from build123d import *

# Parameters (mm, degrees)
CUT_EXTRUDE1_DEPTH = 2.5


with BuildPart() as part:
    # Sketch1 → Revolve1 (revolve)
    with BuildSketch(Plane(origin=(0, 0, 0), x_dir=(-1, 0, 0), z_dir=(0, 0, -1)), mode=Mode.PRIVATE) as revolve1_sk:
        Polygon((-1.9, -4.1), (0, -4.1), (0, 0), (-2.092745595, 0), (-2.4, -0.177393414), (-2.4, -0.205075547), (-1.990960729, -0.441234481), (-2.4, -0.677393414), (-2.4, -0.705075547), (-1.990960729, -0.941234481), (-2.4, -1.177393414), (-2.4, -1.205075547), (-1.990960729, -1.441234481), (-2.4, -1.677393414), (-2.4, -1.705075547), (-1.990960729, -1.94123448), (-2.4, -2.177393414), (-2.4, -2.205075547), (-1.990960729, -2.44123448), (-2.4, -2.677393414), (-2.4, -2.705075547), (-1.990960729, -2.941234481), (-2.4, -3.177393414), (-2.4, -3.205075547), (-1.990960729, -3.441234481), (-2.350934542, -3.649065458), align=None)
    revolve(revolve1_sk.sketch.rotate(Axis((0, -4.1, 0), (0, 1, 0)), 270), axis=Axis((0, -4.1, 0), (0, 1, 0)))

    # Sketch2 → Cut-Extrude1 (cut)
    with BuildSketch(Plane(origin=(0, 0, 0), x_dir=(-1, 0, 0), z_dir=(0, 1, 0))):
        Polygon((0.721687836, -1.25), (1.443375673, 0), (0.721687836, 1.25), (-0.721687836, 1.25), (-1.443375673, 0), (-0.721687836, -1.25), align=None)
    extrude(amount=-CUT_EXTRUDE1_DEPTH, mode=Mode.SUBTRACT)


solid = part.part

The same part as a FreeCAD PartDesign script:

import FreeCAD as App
import Part
import Sketcher
Q = App.Units.Quantity


def add_polygon(sketch, points):
    """Adds a closed chain of lines whose ends are joined by coincident constraints."""
    first, n = sketch.GeometryCount, len(points)
    for a, b in zip(points, points[1:] + points[:1]):
        sketch.addGeometry(Part.LineSegment(App.Vector(*a, 0), App.Vector(*b, 0)), False)
    for i in range(n):
        sketch.addConstraint(Sketcher.Constraint("Coincident", first + i, 2, first + (i + 1) % n, 1))

doc = App.newDocument("Part")
params = doc.addObject("Spreadsheet::Sheet", "Params")
for row, (alias, value) in enumerate([
    ("sketch1_width", "1.9 mm"),
    ("sketch1_height", "4.1 mm"),
    ("revolution_angle", "360 deg"),
    ("pocket1_length", "2.5 mm"),
], start=1):
    params.set(f"A{row}", alias)
    params.set(f"B{row}", "=" + value)
    params.setAlias(f"B{row}", alias)

body = doc.addObject("PartDesign::Body", "Body")

# Sketch on XY plane
sketch1 = doc.addObject("Sketcher::SketchObject", "Sketch")
body.addObject(sketch1)
sketch1.AttachmentSupport = (doc.XY_Plane, [""])
sketch1.MapMode = "FlatFace"
add_polygon(sketch1, [(1.9, -4.1), (0, -4.1), (0, 0), (2.093, 0), (2.4, -0.177), (2.4, -0.205), (1.991, -0.441), (2.4, -0.677), (2.4, -0.705), (1.991, -0.941), (2.4, -1.177), (2.4, -1.205), (1.991, -1.441), (2.4, -1.677), (2.4, -1.705), (1.991, -1.941), (2.4, -2.177), (2.4, -2.205), (1.991, -2.441), (2.4, -2.677), (2.4, -2.705), (1.991, -2.941), (2.4, -3.177), (2.4, -3.205), (1.991, -3.441), (2.351, -3.649)])  # lines 0-25
sketch1.addConstraint([
    Sketcher.Constraint("Horizontal", 0),
    Sketcher.Constraint("Vertical", 1),
    Sketcher.Constraint("Horizontal", 2),
    Sketcher.Constraint("Vertical", 4),
    Sketcher.Constraint("Vertical", 7),
    Sketcher.Constraint("Vertical", 10),
    Sketcher.Constraint("Vertical", 13),
    Sketcher.Constraint("Vertical", 16),
    Sketcher.Constraint("Vertical", 19),
    Sketcher.Constraint("Vertical", 22),
    Sketcher.Constraint("Coincident", 1, 2, -1, 1),
    Sketcher.Constraint("Parallel", 3, 6),
    Sketcher.Constraint("Parallel", 5, 8),
    Sketcher.Constraint("Parallel", 6, 9),
    Sketcher.Constraint("Parallel", 8, 11),
    Sketcher.Constraint("Parallel", 9, 12),
    Sketcher.Constraint("Parallel", 11, 14),
    Sketcher.Constraint("Parallel", 12, 15),
    Sketcher.Constraint("Parallel", 14, 17),
    Sketcher.Constraint("Parallel", 15, 18),
    Sketcher.Constraint("Parallel", 17, 20),
    Sketcher.Constraint("Parallel", 18, 21),
    Sketcher.Constraint("Parallel", 20, 23),
    Sketcher.Constraint("Parallel", 21, 24),
    Sketcher.Constraint("Vertical", 4, 2, 6, 2),
    Sketcher.Constraint("Vertical", 5, 2, 8, 2),
    Sketcher.Constraint("Vertical", 7, 2, 9, 2),
    Sketcher.Constraint("Vertical", 8, 2, 11, 2),
    Sketcher.Constraint("Vertical", 10, 2, 12, 2),
    Sketcher.Constraint("Vertical", 11, 2, 14, 2),
    Sketcher.Constraint("Vertical", 13, 2, 15, 2),
    Sketcher.Constraint("Vertical", 14, 2, 17, 2),
    Sketcher.Constraint("Vertical", 16, 2, 18, 2),
    Sketcher.Constraint("Vertical", 17, 2, 20, 2),
    Sketcher.Constraint("Vertical", 19, 2, 21, 2),
    Sketcher.Constraint("Vertical", 20, 2, 23, 2),
    Sketcher.Constraint("Equal", 4, 7),
    Sketcher.Constraint("Equal", 7, 10),
    Sketcher.Constraint("Equal", 10, 13),
    Sketcher.Constraint("Equal", 13, 16),
    Sketcher.Constraint("Equal", 16, 19),
    Sketcher.Constraint("Equal", 19, 22),
    Sketcher.Constraint("Equal", 5, 6),
    Sketcher.Constraint("Angle", 3, Q("-30 deg")),
    Sketcher.Constraint("Angle", 25, Q("-135 deg")),
    Sketcher.Constraint("DistanceX", 0, 2, 0, 1, 1.9),
    Sketcher.Constraint("DistanceY", 1, 1, 1, 2, 4.1),
    Sketcher.Constraint("DistanceX", -1, 1, 3, 2, 2.4),
    Sketcher.Constraint("DistanceY", 6, 2, 3, 2, 0.5),
    Sketcher.Constraint("Distance", 24, 0.415662),
    Sketcher.Constraint("DistanceX", 2, 1, 2, 2, 2.092746),
])
sketch1.setExpression("Constraints[71]", "Params.sketch1_width")
sketch1.setExpression("Constraints[72]", "Params.sketch1_height")
revolution = doc.addObject("PartDesign::Revolution", "Revolution")
body.addObject(revolution)
revolution.Profile = sketch1
revolution.ReferenceAxis = (sketch1, ["V_Axis"])
revolution.setExpression("Angle", "Params.revolution_angle")

# Sketch on XZ plane
sketch2 = doc.addObject("Sketcher::SketchObject", "Sketch001")
body.addObject(sketch2)
sketch2.AttachmentSupport = (doc.XZ_Plane, [""])
sketch2.MapMode = "FlatFace"
add_polygon(sketch2, [(-0.7, -1.2), (-1.4, 0), (-0.7, 1.2), (0.7, 1.2), (1.4, 0), (0.7, -1.2)])  # lines 0-5
sketch2.addConstraint([
    Sketcher.Constraint("Horizontal", 2),
    Sketcher.Constraint("Horizontal", 5),
    Sketcher.Constraint("Symmetric", 0, 2, 3, 2, -1, 1),
    Sketcher.Constraint("Symmetric", 1, 2, 4, 2, -1, 1),
    Sketcher.Constraint("PointOnObject", 0, 2, -1),
    Sketcher.Constraint("Parallel", 0, 3),
    Sketcher.Constraint("Vertical", 2, 2, 4, 2),
    Sketcher.Constraint("Angle", 0, Q("120 deg")),
    Sketcher.Constraint("DistanceY", 4, 2, 2, 2, 2.5),
    Sketcher.Constraint("DistanceX", 2, 1, 2, 2, 1.443376),
])
pocket1 = doc.addObject("PartDesign::Pocket", "Pocket")
body.addObject(pocket1)
pocket1.Profile = sketch2
pocket1.setExpression("Length", "Params.pocket1_length")
pocket1.Reversed = True

doc.recompute()
